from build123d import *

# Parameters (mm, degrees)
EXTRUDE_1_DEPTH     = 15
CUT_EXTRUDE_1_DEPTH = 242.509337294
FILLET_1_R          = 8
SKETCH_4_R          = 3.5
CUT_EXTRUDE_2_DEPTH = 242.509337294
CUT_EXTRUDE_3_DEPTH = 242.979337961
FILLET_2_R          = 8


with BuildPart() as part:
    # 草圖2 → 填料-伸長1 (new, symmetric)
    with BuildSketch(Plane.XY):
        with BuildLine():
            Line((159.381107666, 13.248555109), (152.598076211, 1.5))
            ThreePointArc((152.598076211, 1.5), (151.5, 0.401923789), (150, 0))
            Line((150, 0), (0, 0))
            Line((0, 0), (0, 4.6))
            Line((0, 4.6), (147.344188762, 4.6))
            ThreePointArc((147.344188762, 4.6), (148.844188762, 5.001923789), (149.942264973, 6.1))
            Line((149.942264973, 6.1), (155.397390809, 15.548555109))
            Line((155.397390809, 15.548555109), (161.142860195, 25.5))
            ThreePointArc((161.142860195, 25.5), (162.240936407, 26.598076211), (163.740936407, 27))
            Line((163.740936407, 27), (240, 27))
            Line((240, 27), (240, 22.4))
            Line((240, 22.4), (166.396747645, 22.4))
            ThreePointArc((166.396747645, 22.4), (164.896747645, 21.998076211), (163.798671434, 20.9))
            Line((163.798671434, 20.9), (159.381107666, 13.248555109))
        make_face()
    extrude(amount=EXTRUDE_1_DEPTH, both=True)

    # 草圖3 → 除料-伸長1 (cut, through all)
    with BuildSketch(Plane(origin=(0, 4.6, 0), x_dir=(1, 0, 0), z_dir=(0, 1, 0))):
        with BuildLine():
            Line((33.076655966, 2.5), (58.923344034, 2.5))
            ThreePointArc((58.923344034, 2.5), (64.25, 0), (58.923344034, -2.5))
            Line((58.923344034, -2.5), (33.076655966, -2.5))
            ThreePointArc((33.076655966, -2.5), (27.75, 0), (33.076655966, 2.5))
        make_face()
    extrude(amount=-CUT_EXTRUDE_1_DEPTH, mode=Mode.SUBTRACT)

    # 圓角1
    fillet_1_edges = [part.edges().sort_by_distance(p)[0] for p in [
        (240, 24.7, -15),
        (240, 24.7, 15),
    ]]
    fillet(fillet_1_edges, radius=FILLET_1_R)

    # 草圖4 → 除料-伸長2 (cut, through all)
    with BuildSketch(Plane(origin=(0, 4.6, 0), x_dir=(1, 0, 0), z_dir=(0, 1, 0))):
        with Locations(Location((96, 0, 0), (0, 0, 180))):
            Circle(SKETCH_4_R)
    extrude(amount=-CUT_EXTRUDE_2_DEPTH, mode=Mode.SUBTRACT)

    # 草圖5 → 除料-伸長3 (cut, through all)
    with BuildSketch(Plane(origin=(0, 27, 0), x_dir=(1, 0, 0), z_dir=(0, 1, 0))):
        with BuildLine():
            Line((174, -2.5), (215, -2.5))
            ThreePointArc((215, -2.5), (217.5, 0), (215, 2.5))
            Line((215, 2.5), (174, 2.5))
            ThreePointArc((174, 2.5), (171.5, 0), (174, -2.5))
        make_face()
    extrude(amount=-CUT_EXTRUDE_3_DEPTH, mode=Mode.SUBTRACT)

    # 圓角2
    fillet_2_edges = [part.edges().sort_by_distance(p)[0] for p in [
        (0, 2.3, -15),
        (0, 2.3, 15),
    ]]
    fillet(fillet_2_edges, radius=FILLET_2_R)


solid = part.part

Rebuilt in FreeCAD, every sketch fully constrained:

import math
import FreeCAD as App
import Part
import Sketcher

V = App.Vector
Q = App.Units.Quantity


def edges_at(feature, points):
    """Names of the edges that pass closest to the given points."""
    edges = feature.Shape.Edges
    near = lambda p: min(range(len(edges)), key=lambda i: edges[i].distToShape(Part.Vertex(*p))[0])
    return sorted({f"Edge{near(p) + 1}" for p in points})

doc = App.newDocument("Part")
body = doc.addObject("PartDesign::Body", "Body")

# Sketch on XY plane
sketch1 = body.newObject("Sketcher::SketchObject", "Sketch")
sketch1.AttachmentSupport = (doc.getObject("XY_Plane"), [""])
sketch1.MapMode = "FlatFace"
sketch1.addGeometry([
    Part.LineSegment(V(152.6, 1.5, 0), V(159.4, 13.2, 0)),  # 0
    Part.LineSegment(V(159.4, 13.2, 0), V(163.8, 20.9, 0)),  # 1
    Part.ArcOfCircle(Part.Circle(V(166.4, 19.4, 0), V(0, 0, 1), 3), math.radians(90), math.radians(150)),  # 2
    Part.LineSegment(V(166.4, 22.4, 0), V(240, 22.4, 0)),  # 3
    Part.LineSegment(V(240, 22.4, 0), V(240, 27, 0)),  # 4
    Part.LineSegment(V(240, 27, 0), V(163.7, 27, 0)),  # 5
    Part.ArcOfCircle(Part.Circle(V(163.7, 24, 0), V(0, 0, 1), 3), math.radians(90), math.radians(150)),  # 6
    Part.LineSegment(V(161.1, 25.5, 0), V(155.4, 15.5, 0)),  # 7
    Part.LineSegment(V(155.4, 15.5, 0), V(149.9, 6.1, 0)),  # 8
    Part.ArcOfCircle(Part.Circle(V(147.3, 7.6, 0), V(0, 0, 1), 3), math.radians(-90), math.radians(-30)),  # 9
    Part.LineSegment(V(147.3, 4.6, 0), V(0, 4.6, 0)),  # 10
    Part.LineSegment(V(0, 4.6, 0), V(0, 0, 0)),  # 11
    Part.LineSegment(V(0, 0, 0), V(150, 0, 0)),  # 12
    Part.ArcOfCircle(Part.Circle(V(150, 3, 0), V(0, 0, 1), 3), math.radians(-90), math.radians(-30)),  # 13
], False)
sketch1.addConstraint([
    Sketcher.Constraint("Coincident", 0, 2, 1, 1),
    Sketcher.Constraint("Tangent", 1, 2, 2, 2),
    Sketcher.Constraint("Tangent", 2, 1, 3, 1),
    Sketcher.Constraint("Coincident", 3, 2, 4, 1),
    Sketcher.Constraint("Coincident", 4, 2, 5, 1),
    Sketcher.Constraint("Tangent", 5, 2, 6, 1),
    Sketcher.Constraint("Tangent", 6, 2, 7, 1),
    Sketcher.Constraint("Coincident", 7, 2, 8, 1),
    Sketcher.Constraint("Tangent", 8, 2, 9, 2),
    Sketcher.Constraint("Tangent", 9, 1, 10, 1),
    Sketcher.Constraint("Coincident", 10, 2, 11, 1),
    Sketcher.Constraint("Coincident", 11, 2, 12, 1),
    Sketcher.Constraint("Tangent", 12, 2, 13, 1),
    Sketcher.Constraint("Tangent", 13, 2, 0, 1),
    Sketcher.Constraint("Horizontal", 3),
    Sketcher.Constraint("Vertical", 4),
    Sketcher.Constraint("Horizontal", 5),
    Sketcher.Constraint("Horizontal", 10),
    Sketcher.Constraint("Vertical", 11),
    Sketcher.Constraint("Horizontal", 12),
    Sketcher.Constraint("Coincident", 11, 2, -1, 1),
    Sketcher.Constraint("Equal", 2, 6),
    Sketcher.Constraint("Equal", 6, 9),
    Sketcher.Constraint("Equal", 9, 13),
    Sketcher.Constraint("Parallel", 0, 1),
    Sketcher.Constraint("Parallel", 1, 7),
    Sketcher.Constraint("Parallel", 7, 8),
    Sketcher.Constraint("Equal", 4, 11),
    Sketcher.Constraint("Radius", 2, Q("3 mm")),
    Sketcher.Constraint("DistanceX", 12, 1, 12, 2, Q("150 mm")),
    Sketcher.Constraint("Angle", 0, Q("60 deg")),
    Sketcher.Constraint("DistanceY", 4, 1, 4, 2, Q("4.6 mm")),
    Sketcher.Constraint("DistanceY", -1, 1, 6, 3, Q("24 mm")),
    Sketcher.Constraint("DistanceX", -1, 1, 3, 2, Q("240 mm")),
    Sketcher.Constraint("DistanceY", 0, 2, 7, 2, Q("2.3 mm")),
    Sketcher.Constraint("DistanceX", 10, 2, 10, 1, Q("147.344189 mm")),
    Sketcher.Constraint("Distance", 7, Q("11.490939 mm")),
])
pad1 = body.newObject("PartDesign::Pad", "Pad")
pad1.Profile = sketch1
pad1.Length = 30
pad1.Midplane = True

# Sketch on XZ plane
sketch2 = body.newObject("Sketcher::SketchObject", "Sketch001")
sketch2.AttachmentSupport = (doc.getObject("XZ_Plane"), [""])
sketch2.MapMode = "FlatFace"
sketch2.AttachmentOffset = App.Placement(V(0, 0, -4.6), App.Rotation())
sketch2.addGeometry([
    Part.LineSegment(V(58.9, -2.5, 0), V(33.1, -2.5, 0)),
    Part.ArcOfCircle(Part.Circle(V(31, 0, 0), V(0, 0, 1), 3.2), math.radians(50), math.radians(310)),
    Part.LineSegment(V(33.1, 2.5, 0), V(58.9, 2.5, 0)),
    Part.ArcOfCircle(Part.Circle(V(61, 0, 0), V(0, 0, 1), 3.2), math.radians(-130), math.radians(130)),
], False)
sketch2.addConstraint([
    Sketcher.Constraint("Coincident", 0, 2, 1, 2),
    Sketcher.Constraint("Coincident", 1, 1, 2, 1),
    Sketcher.Constraint("Coincident", 2, 2, 3, 2),
    Sketcher.Constraint("Coincident", 3, 1, 0, 1),
    Sketcher.Constraint("Horizontal", 0),
    Sketcher.Constraint("Horizontal", 2),
    Sketcher.Constraint("Equal", 1, 3),
    Sketcher.Constraint("Symmetric", 0, 2, 1, 1, -1),
    Sketcher.Constraint("PointOnObject", 3, 3, -1),
    Sketcher.Constraint("Radius", 1, Q("3.25 mm")),
    Sketcher.Constraint("DistanceX", -1, 1, 1, 3, Q("31 mm")),
    Sketcher.Constraint("DistanceX", -1, 1, 3, 3, Q("61 mm")),
    Sketcher.Constraint("DistanceY", 0, 2, 1, 1, Q("5 mm")),
])
pocket1 = body.newObject("PartDesign::Pocket", "Pocket")
pocket1.Profile = sketch2
pocket1.Type = "ThroughAll"
pocket1.Reversed = True
doc.recompute()

fillet = body.newObject("PartDesign::Fillet", "Fillet")
fillet.Base = (pocket1, edges_at(pocket1, [(240, 24.7, -15), (240, 24.7, 15)]))
fillet.Radius = 8

# Sketch on XZ plane
sketch3 = body.newObject("Sketcher::SketchObject", "Sketch002")
sketch3.AttachmentSupport = (doc.getObject("XZ_Plane"), [""])
sketch3.MapMode = "FlatFace"
sketch3.AttachmentOffset = App.Placement(V(0, 0, -4.6), App.Rotation())
sketch3.addGeometry(Part.Circle(V(96, 0, 0), V(0, 0, 1), 3.5), False)
sketch3.addConstraint([
    Sketcher.Constraint("PointOnObject", 0, 3, -1),
    Sketcher.Constraint("Diameter", 0, Q("7 mm")),
    Sketcher.Constraint("DistanceX", -1, 1, 0, 3, Q("96 mm")),
])
pocket2 = body.newObject("PartDesign::Pocket", "Pocket001")
pocket2.Profile = sketch3
pocket2.Type = "ThroughAll"
pocket2.Reversed = True

# Sketch on XZ plane
sketch4 = body.newObject("Sketcher::SketchObject", "Sketch003")
sketch4.AttachmentSupport = (doc.getObject("XZ_Plane"), [""])
sketch4.MapMode = "FlatFace"
sketch4.AttachmentOffset = App.Placement(V(0, 0, -27), App.Rotation())
sketch4.addGeometry([
    Part.LineSegment(V(174, 2.5, 0), V(215, 2.5, 0)),
    Part.ArcOfCircle(Part.Circle(V(215, 0, 0), V(0, 0, 1), 2.5), math.radians(-90), math.radians(90)),
    Part.LineSegment(V(215, -2.5, 0), V(174, -2.5, 0)),
    Part.ArcOfCircle(Part.Circle(V(174, 0, 0), V(0, 0, 1), 2.5), math.radians(90), math.radians(270)),
], False)
sketch4.addConstraint([
    Sketcher.Constraint("Tangent", 0, 2, 1, 2),
    Sketcher.Constraint("Tangent", 1, 1, 2, 1),
    Sketcher.Constraint("Tangent", 2, 2, 3, 2),
    Sketcher.Constraint("Tangent", 3, 1, 0, 1),
    Sketcher.Constraint("Horizontal", 0),
    Sketcher.Constraint("Horizontal", 2),
    Sketcher.Constraint("PointOnObject", 1, 3, -1),
    Sketcher.Constraint("Radius", 1, Q("2.5 mm")),
    Sketcher.Constraint("DistanceX", 0, 1, 0, 2, Q("41 mm")),
    Sketcher.Constraint("DistanceX", -1, 1, 1, 3, Q("215 mm")),
])
pocket3 = body.newObject("PartDesign::Pocket", "Pocket002")
pocket3.Profile = sketch4
pocket3.Type = "ThroughAll"
pocket3.Reversed = True
doc.recompute()

fillet2 = body.newObject("PartDesign::Fillet", "Fillet001")
fillet2.Base = (pocket3, edges_at(pocket3, [(0, 2.3, -15), (0, 2.3, 15)]))
fillet2.Radius = 8

doc.recompute()
